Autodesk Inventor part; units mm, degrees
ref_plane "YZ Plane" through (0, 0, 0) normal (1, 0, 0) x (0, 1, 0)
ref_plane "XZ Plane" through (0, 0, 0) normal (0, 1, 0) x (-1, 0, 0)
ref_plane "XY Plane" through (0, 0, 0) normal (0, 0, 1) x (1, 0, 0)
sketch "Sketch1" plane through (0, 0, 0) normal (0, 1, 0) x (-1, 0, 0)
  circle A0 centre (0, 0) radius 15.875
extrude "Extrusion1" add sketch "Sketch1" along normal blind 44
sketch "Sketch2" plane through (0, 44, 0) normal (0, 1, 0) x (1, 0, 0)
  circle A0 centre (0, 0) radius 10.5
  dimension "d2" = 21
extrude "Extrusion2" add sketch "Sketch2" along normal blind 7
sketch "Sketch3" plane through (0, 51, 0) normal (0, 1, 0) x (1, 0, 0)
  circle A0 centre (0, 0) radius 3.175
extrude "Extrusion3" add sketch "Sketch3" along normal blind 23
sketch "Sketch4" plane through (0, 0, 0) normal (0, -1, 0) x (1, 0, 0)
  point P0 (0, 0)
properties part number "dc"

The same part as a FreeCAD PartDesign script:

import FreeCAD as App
import Part
import Sketcher
from FreeCAD import Vector
Q = App.Units.Quantity

doc = App.newDocument("Part")
params = doc.addObject("Spreadsheet::Sheet", "Params")
for row, (alias, value) in enumerate([
    ("sketch1_diameter", "31.75 mm"),
    ("pad1_length", "44 mm"),
    ("sketch2_diameter", "21 mm"),
    ("pad2_length", "7 mm"),
    ("sketch3_diameter", "6.35 mm"),
    ("pad3_length", "23 mm"),
], start=1):
    params.set(f"A{row}", alias)
    params.set(f"B{row}", "=" + value)
    params.setAlias(f"B{row}", alias)

body = doc.addObject("PartDesign::Body", "Body")

sketch1 = doc.addObject("Sketcher::SketchObject", "Sketch")
body.addObject(sketch1)
sketch1.AttachmentSupport = (doc.XZ_Plane, [""])
sketch1.MapMode = "FlatFace"
sketch1.addGeometry(Part.Circle(Vector(0, 0, 0), Vector(0, 0, 1), 16), False)
sketch1.addConstraint(Sketcher.Constraint("Coincident", 0, 3, -1, 1))
sketch1.addConstraint(Sketcher.Constraint("Diameter", 0, Q("31.75 mm")))
sketch1.setExpression("Constraints[1]", "Params.sketch1_diameter")
pad1 = doc.addObject("PartDesign::Pad", "Pad")
body.addObject(pad1)
pad1.Profile = sketch1
pad1.setExpression("Length", "Params.pad1_length")
pad1.Reversed = True

sketch2 = doc.addObject("Sketcher::SketchObject", "Sketch001")
body.addObject(sketch2)
sketch2.AttachmentSupport = (doc.XZ_Plane, [""])
sketch2.MapMode = "FlatFace"
sketch2.AttachmentOffset = App.Placement(Vector(0, 0, -44), App.Rotation())
sketch2.addGeometry(Part.Circle(Vector(0, 0, 0), Vector(0, 0, 1), 10), False)
sketch2.addConstraint(Sketcher.Constraint("Coincident", 0, 3, -1, 1))
sketch2.addConstraint(Sketcher.Constraint("Diameter", 0, Q("21 mm")))
sketch2.setExpression("Constraints[1]", "Params.sketch2_diameter")
pad2 = doc.addObject("PartDesign::Pad", "Pad001")
body.addObject(pad2)
pad2.Profile = sketch2
pad2.setExpression("Length", "Params.pad2_length")
pad2.Reversed = True

sketch3 = doc.addObject("Sketcher::SketchObject", "Sketch002")
body.addObject(sketch3)
sketch3.AttachmentSupport = (doc.XZ_Plane, [""])
sketch3.MapMode = "FlatFace"
sketch3.AttachmentOffset = App.Placement(Vector(0, 0, -51), App.Rotation())
sketch3.addGeometry(Part.Circle(Vector(0, 0, 0), Vector(0, 0, 1), 3.2), False)
sketch3.addConstraint(Sketcher.Constraint("Coincident", 0, 3, -1, 1))
sketch3.addConstraint(Sketcher.Constraint("Diameter", 0, Q("6.35 mm")))
sketch3.setExpression("Constraints[1]", "Params.sketch3_diameter")
pad3 = doc.addObject("PartDesign::Pad", "Pad002")
body.addObject(pad3)
pad3.Profile = sketch3
pad3.setExpression("Length", "Params.pad3_length")
pad3.Reversed = True

doc.recompute()
